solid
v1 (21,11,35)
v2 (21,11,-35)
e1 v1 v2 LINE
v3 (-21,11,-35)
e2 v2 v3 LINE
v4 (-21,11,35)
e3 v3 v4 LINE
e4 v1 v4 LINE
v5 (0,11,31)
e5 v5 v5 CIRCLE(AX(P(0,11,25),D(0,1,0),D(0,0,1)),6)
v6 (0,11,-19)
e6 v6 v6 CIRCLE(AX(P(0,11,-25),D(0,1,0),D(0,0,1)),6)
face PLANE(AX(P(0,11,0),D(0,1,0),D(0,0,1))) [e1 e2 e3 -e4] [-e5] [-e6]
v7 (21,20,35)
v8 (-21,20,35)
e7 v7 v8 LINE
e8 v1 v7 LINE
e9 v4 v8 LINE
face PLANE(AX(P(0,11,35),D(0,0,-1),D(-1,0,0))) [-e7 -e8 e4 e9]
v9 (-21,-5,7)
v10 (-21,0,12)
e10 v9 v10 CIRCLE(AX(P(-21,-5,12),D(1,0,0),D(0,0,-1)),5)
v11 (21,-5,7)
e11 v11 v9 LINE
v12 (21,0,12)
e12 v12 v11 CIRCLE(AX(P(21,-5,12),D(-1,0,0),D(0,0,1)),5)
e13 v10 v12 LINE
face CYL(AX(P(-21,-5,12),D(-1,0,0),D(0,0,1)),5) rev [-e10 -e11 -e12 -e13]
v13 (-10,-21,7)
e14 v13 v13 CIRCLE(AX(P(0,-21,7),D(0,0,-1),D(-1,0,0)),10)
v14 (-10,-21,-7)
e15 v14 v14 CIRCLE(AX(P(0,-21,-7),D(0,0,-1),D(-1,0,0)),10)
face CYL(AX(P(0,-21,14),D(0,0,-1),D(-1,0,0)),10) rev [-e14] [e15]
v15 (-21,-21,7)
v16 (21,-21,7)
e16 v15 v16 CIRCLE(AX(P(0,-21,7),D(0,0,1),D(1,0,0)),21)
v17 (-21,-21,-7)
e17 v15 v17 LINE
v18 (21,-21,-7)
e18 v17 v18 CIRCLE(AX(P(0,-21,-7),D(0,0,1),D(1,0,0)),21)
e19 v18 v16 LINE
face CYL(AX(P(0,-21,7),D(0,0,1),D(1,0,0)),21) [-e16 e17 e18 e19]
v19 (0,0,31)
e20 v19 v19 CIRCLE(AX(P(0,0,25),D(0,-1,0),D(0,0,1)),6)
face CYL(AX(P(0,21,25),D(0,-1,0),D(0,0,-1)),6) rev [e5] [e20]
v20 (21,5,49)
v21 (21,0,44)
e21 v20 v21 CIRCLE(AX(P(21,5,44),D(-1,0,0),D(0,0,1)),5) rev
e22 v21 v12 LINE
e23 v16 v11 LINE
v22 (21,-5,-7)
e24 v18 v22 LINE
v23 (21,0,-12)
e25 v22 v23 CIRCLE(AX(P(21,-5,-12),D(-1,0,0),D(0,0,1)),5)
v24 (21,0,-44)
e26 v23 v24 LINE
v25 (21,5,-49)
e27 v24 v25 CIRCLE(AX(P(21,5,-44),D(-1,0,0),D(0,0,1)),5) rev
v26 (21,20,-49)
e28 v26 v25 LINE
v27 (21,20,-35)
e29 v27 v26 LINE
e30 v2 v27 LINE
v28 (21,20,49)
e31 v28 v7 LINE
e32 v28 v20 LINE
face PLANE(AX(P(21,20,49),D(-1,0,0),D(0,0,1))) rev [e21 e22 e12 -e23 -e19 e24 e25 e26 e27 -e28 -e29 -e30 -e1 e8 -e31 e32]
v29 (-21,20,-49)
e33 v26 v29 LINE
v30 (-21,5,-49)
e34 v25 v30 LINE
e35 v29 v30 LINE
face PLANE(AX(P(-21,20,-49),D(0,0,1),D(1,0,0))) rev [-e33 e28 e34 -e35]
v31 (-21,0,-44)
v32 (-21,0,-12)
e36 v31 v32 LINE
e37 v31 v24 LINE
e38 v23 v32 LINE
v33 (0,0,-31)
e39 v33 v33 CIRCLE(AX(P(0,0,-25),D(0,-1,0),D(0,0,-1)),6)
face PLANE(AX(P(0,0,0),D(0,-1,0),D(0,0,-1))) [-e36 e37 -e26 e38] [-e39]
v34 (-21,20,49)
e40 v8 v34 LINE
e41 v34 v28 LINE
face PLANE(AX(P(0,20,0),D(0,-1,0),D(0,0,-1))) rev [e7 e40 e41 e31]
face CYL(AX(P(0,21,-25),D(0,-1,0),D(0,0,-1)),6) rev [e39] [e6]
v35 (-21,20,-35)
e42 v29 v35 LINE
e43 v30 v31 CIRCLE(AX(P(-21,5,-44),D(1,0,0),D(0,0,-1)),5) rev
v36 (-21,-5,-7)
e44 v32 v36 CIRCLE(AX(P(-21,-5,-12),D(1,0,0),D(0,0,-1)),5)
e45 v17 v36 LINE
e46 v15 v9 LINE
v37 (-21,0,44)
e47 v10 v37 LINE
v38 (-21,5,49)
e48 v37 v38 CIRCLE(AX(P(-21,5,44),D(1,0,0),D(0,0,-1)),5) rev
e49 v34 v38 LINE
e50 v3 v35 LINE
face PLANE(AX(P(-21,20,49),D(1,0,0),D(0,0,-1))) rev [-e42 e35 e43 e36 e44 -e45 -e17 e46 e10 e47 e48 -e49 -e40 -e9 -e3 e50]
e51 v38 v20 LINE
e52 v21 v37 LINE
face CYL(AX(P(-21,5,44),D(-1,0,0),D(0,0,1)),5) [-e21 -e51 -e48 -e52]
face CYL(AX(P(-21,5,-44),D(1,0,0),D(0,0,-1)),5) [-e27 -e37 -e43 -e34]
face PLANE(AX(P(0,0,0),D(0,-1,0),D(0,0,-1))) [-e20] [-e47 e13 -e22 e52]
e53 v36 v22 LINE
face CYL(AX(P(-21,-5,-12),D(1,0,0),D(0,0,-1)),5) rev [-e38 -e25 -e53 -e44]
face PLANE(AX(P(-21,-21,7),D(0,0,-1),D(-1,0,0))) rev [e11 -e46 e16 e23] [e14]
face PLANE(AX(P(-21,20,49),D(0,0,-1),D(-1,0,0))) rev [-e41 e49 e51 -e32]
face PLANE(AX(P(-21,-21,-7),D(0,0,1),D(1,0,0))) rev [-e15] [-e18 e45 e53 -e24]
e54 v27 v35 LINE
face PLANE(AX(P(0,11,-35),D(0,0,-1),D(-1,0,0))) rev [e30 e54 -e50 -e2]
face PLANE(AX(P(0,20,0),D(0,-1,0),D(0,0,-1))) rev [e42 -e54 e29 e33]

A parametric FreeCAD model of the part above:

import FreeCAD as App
import Part
import Sketcher
from FreeCAD import Vector
Q = App.Units.Quantity


def edges_at(feature, points):
    """Names of the edges that pass closest to the given points."""
    edges = feature.Shape.Edges
    near = lambda p: min(range(len(edges)), key=lambda i: edges[i].distToShape(Part.Vertex(*p))[0])
    return sorted({f"Edge{near(p) + 1}" for p in points})

doc = App.newDocument("Part")
params = doc.addObject("Spreadsheet::Sheet", "Params")
for row, (alias, value) in enumerate([
    ("sketch1_width", "42 mm"),
    ("sketch1_height", "98 mm"),
    ("pad1_length", "20 mm"),
    ("sketch2_width", "42 mm"),
    ("sketch2_height", "70 mm"),
    ("pocket1_length", "9 mm"),
    ("sketch3_width", "42 mm"),
    ("sketch3_height", "14 mm"),
    ("pad2_length", "21 mm"),
    ("sketch4_width", "21 mm"),
    ("sketch4_height", "14 mm"),
    ("revolution_angle", "180 deg"),
    ("sketch5_diameter", "12 mm"),
    ("pocket2_length", "21 mm"),
    ("sketch6_diameter", "20 mm"),
    ("pocket3_length", "21 mm"),
    ("fillet_radius", "5 mm"),
], start=1):
    params.set(f"A{row}", alias)
    params.set(f"B{row}", "=" + value)
    params.setAlias(f"B{row}", alias)

body = doc.addObject("PartDesign::Body", "Body")

# Sketch on XZ plane
sketch1 = body.newObject("Sketcher::SketchObject", "Sketch")
sketch1.AttachmentSupport = (doc.getObject("XZ_Plane"), [""])
sketch1.MapMode = "FlatFace"
sketch1.addGeometry(Part.LineSegment(Vector(-21, -49, 0), Vector(-21, 49, 0)), False)
sketch1.addGeometry(Part.LineSegment(Vector(-21, 49, 0), Vector(21, 49, 0)), False)
sketch1.addGeometry(Part.LineSegment(Vector(21, 49, 0), Vector(21, -49, 0)), False)
sketch1.addGeometry(Part.LineSegment(Vector(21, -49, 0), Vector(-21, -49, 0)), False)
sketch1.addConstraint(Sketcher.Constraint("Coincident", 0, 2, 1, 1))
sketch1.addConstraint(Sketcher.Constraint("Coincident", 1, 2, 2, 1))
sketch1.addConstraint(Sketcher.Constraint("Coincident", 2, 2, 3, 1))
sketch1.addConstraint(Sketcher.Constraint("Coincident", 3, 2, 0, 1))
sketch1.addConstraint(Sketcher.Constraint("Vertical", 0))
sketch1.addConstraint(Sketcher.Constraint("Horizontal", 1))
sketch1.addConstraint(Sketcher.Constraint("Vertical", 2))
sketch1.addConstraint(Sketcher.Constraint("Horizontal", 3))
sketch1.addConstraint(Sketcher.Constraint("Symmetric", 0, 2, 2, 2, -1, 1))
sketch1.addConstraint(Sketcher.Constraint("DistanceX", 1, 1, 1, 2, Q("42 mm")))
sketch1.addConstraint(Sketcher.Constraint("DistanceY", 0, 1, 0, 2, Q("98 mm")))
sketch1.setExpression("Constraints[9]", "Params.sketch1_width")
sketch1.setExpression("Constraints[10]", "Params.sketch1_height")
pad1 = body.newObject("PartDesign::Pad", "Pad")
pad1.Profile = sketch1
pad1.setExpression("Length", "Params.pad1_length")
pad1.Reversed = True

# Sketch on XZ plane
sketch2 = body.newObject("Sketcher::SketchObject", "Sketch001")
sketch2.AttachmentSupport = (doc.getObject("XZ_Plane"), [""])
sketch2.MapMode = "FlatFace"
sketch2.AttachmentOffset = App.Placement(Vector(0, 0, -20), App.Rotation())
sketch2.addGeometry(Part.LineSegment(Vector(-21, -35, 0), Vector(-21, 35, 0)), False)
sketch2.addGeometry(Part.LineSegment(Vector(-21, 35, 0), Vector(21, 35, 0)), False)
sketch2.addGeometry(Part.LineSegment(Vector(21, 35, 0), Vector(21, -35, 0)), False)
sketch2.addGeometry(Part.LineSegment(Vector(21, -35, 0), Vector(-21, -35, 0)), False)
sketch2.addConstraint(Sketcher.Constraint("Coincident", 0, 2, 1, 1))
sketch2.addConstraint(Sketcher.Constraint("Coincident", 1, 2, 2, 1))
sketch2.addConstraint(Sketcher.Constraint("Coincident", 2, 2, 3, 1))
sketch2.addConstraint(Sketcher.Constraint("Coincident", 3, 2, 0, 1))
sketch2.addConstraint(Sketcher.Constraint("Vertical", 0))
sketch2.addConstraint(Sketcher.Constraint("Horizontal", 1))
sketch2.addConstraint(Sketcher.Constraint("Vertical", 2))
sketch2.addConstraint(Sketcher.Constraint("Horizontal", 3))
sketch2.addConstraint(Sketcher.Constraint("Symmetric", 0, 2, 2, 2, -1, 1))
sketch2.addConstraint(Sketcher.Constraint("DistanceX", 1, 1, 1, 2, Q("42 mm")))
sketch2.addConstraint(Sketcher.Constraint("DistanceY", 0, 1, 0, 2, Q("70 mm")))
sketch2.setExpression("Constraints[9]", "Params.sketch2_width")
sketch2.setExpression("Constraints[10]", "Params.sketch2_height")
pocket1 = body.newObject("PartDesign::Pocket", "Pocket")
pocket1.Profile = sketch2
pocket1.setExpression("Length", "Params.pocket1_length")
pocket1.Reversed = True

# Sketch on XZ plane
sketch3 = body.newObject("Sketcher::SketchObject", "Sketch002")
sketch3.AttachmentSupport = (doc.getObject("XZ_Plane"), [""])
sketch3.MapMode = "FlatFace"
sketch3.addGeometry(Part.LineSegment(Vector(-21, 7, 0), Vector(-21, -7, 0)), False)
sketch3.addGeometry(Part.LineSegment(Vector(-21, -7, 0), Vector(21, -7, 0)), False)
sketch3.addGeometry(Part.LineSegment(Vector(21, -7, 0), Vector(21, 7, 0)), False)
sketch3.addGeometry(Part.LineSegment(Vector(21, 7, 0), Vector(-21, 7, 0)), False)
sketch3.addConstraint(Sketcher.Constraint("Coincident", 0, 2, 1, 1))
sketch3.addConstraint(Sketcher.Constraint("Coincident", 1, 2, 2, 1))
sketch3.addConstraint(Sketcher.Constraint("Coincident", 2, 2, 3, 1))
sketch3.addConstraint(Sketcher.Constraint("Coincident", 3, 2, 0, 1))
sketch3.addConstraint(Sketcher.Constraint("Vertical", 0))
sketch3.addConstraint(Sketcher.Constraint("Horizontal", 1))
sketch3.addConstraint(Sketcher.Constraint("Vertical", 2))
sketch3.addConstraint(Sketcher.Constraint("Horizontal", 3))
sketch3.addConstraint(Sketcher.Constraint("Symmetric", 0, 2, 2, 2, -1, 1))
sketch3.addConstraint(Sketcher.Constraint("DistanceX", 1, 1, 1, 2, Q("42 mm")))
sketch3.addConstraint(Sketcher.Constraint("DistanceY", 0, 2, 0, 1, Q("14 mm")))
sketch3.setExpression("Constraints[9]", "Params.sketch3_width")
sketch3.setExpression("Constraints[10]", "Params.sketch3_height")
pad2 = body.newObject("PartDesign::Pad", "Pad001")
pad2.Profile = sketch3
pad2.setExpression("Length", "Params.pad2_length")

# Sketch on XZ plane
sketch4 = body.newObject("Sketcher::SketchObject", "Sketch003")
sketch4.AttachmentSupport = (doc.getObject("XZ_Plane"), [""])
sketch4.MapMode = "FlatFace"
sketch4.AttachmentOffset = App.Placement(Vector(0, 0, 21), App.Rotation())
sketch4.addGeometry(Part.LineSegment(Vector(0, 7, 0), Vector(0, -7, 0)), False)
sketch4.addGeometry(Part.LineSegment(Vector(0, -7, 0), Vector(21, -7, 0)), False)
sketch4.addGeometry(Part.LineSegment(Vector(21, -7, 0), Vector(21, 7, 0)), False)
sketch4.addGeometry(Part.LineSegment(Vector(21, 7, 0), Vector(0, 7, 0)), False)
sketch4.addConstraint(Sketcher.Constraint("Coincident", 0, 2, 1, 1))
sketch4.addConstraint(Sketcher.Constraint("Coincident", 1, 2, 2, 1))
sketch4.addConstraint(Sketcher.Constraint("Coincident", 2, 2, 3, 1))
sketch4.addConstraint(Sketcher.Constraint("Coincident", 3, 2, 0, 1))
sketch4.addConstraint(Sketcher.Constraint("Vertical", 0))
sketch4.addConstraint(Sketcher.Constraint("Horizontal", 1))
sketch4.addConstraint(Sketcher.Constraint("Vertical", 2))
sketch4.addConstraint(Sketcher.Constraint("Horizontal", 3))
sketch4.addConstraint(Sketcher.Constraint("Symmetric", 0, 2, 3, 2, -1, 1))
sketch4.addConstraint(Sketcher.Constraint("DistanceX", 1, 1, 1, 2, Q("21 mm")))
sketch4.addConstraint(Sketcher.Constraint("DistanceY", 0, 2, 0, 1, Q("14 mm")))
sketch4.setExpression("Constraints[9]", "Params.sketch4_width")
sketch4.setExpression("Constraints[10]", "Params.sketch4_height")
revolution = body.newObject("PartDesign::Revolution", "Revolution")
revolution.Profile = sketch4
revolution.ReferenceAxis = (sketch4, ["V_Axis"])
revolution.setExpression("Angle", "Params.revolution_angle")
revolution.Reversed = True

# Sketch on XZ plane
sketch5 = body.newObject("Sketcher::SketchObject", "Sketch004")
sketch5.AttachmentSupport = (doc.getObject("XZ_Plane"), [""])
sketch5.MapMode = "FlatFace"
sketch5.addGeometry(Part.Circle(Vector(0, -25, 0), Vector(0, 0, 1), 6), False)
sketch5.addGeometry(Part.Circle(Vector(0, 25, 0), Vector(0, 0, 1), 6), False)
sketch5.addConstraint(Sketcher.Constraint("Equal", 0, 1))
sketch5.addConstraint(Sketcher.Constraint("Symmetric", 0, 3, 1, 3, -1, 1))
sketch5.addConstraint(Sketcher.Constraint("PointOnObject", 0, 3, -2))
sketch5.addConstraint(Sketcher.Constraint("Diameter", 0, Q("12 mm")))
sketch5.addConstraint(Sketcher.Constraint("DistanceY", 0, 3, -1, 1, Q("25 mm")))
sketch5.setExpression("Constraints[3]", "Params.sketch5_diameter")
pocket2 = body.newObject("PartDesign::Pocket", "Pocket001")
pocket2.Profile = sketch5
pocket2.setExpression("Length", "Params.pocket2_length")

# Sketch on XY plane
sketch6 = body.newObject("Sketcher::SketchObject", "Sketch005")
sketch6.AttachmentSupport = (doc.getObject("XY_Plane"), [""])
sketch6.MapMode = "FlatFace"
sketch6.AttachmentOffset = App.Placement(Vector(0, 0, -7), App.Rotation())
sketch6.addGeometry(Part.Circle(Vector(0, -21, 0), Vector(0, 0, 1), 10), False)
sketch6.addConstraint(Sketcher.Constraint("PointOnObject", 0, 3, -2))
sketch6.addConstraint(Sketcher.Constraint("Diameter", 0, Q("20 mm")))
sketch6.addConstraint(Sketcher.Constraint("DistanceY", 0, 3, -1, 1, Q("21 mm")))
sketch6.setExpression("Constraints[1]", "Params.sketch6_diameter")
pocket3 = body.newObject("PartDesign::Pocket", "Pocket002")
pocket3.Profile = sketch6
pocket3.setExpression("Length", "Params.pocket3_length")
pocket3.Reversed = True
doc.recompute()

fillet = body.newObject("PartDesign::Fillet", "Fillet")
fillet.Base = (pocket3, edges_at(pocket3, [
    (0, 0, -7),
    (0, 0, 7),
    (0, 0, 49),
    (0, 0, -49),
]))
fillet.setExpression("Radius", "Params.fillet_radius")

doc.recompute()
